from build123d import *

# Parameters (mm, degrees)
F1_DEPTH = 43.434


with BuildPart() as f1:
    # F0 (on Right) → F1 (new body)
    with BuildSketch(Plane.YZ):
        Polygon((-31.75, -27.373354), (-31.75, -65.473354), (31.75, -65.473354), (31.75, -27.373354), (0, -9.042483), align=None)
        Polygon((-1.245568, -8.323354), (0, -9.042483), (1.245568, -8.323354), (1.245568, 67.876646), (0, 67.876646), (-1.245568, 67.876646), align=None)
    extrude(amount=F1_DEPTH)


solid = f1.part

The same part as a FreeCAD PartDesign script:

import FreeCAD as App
import Part
import Sketcher

V = App.Vector
Q = App.Units.Quantity


def add_polygon(sketch, points):
    """Adds a closed chain of lines whose ends are joined by coincident constraints."""
    first, n = sketch.GeometryCount, len(points)
    for a, b in zip(points, points[1:] + points[:1]):
        sketch.addGeometry(Part.LineSegment(App.Vector(*a, 0), App.Vector(*b, 0)), False)
    for i in range(n):
        sketch.addConstraint(Sketcher.Constraint("Coincident", first + i, 2, first + (i + 1) % n, 1))

doc = App.newDocument("Part")
params = doc.addObject("Spreadsheet::Sheet", "Params")
for row, (alias, value) in enumerate([
    ("sketch1_height", "3 in"),
    ("sketch1_width", "2.5 in"),
    ("sketch1_height2", "1.5 in"),
    ("pad1_length", "1.71 in"),
], start=1):
    params.set(f"A{row}", alias)
    params.set(f"B{row}", "=" + value)
    params.setAlias(f"B{row}", alias)

body = doc.addObject("PartDesign::Body", "Body")
body.AllowCompound = True

# Sketch on YZ plane
sketch1 = doc.addObject("Sketcher::SketchObject", "Sketch")
body.addObject(sketch1)
sketch1.AttachmentSupport = (doc.YZ_Plane, [""])
sketch1.MapMode = "FlatFace"
add_polygon(sketch1, [(-31.75, -27.373354), (-31.75, -65.473354), (31.75, -65.473354), (31.75, -27.373354), (0, -9.042483)])  # lines 0-4
add_polygon(sketch1, [(-1.245568, -8.323354), (0, -9.042483), (1.245568, -8.323354), (1.245568, 67.876646), (-1.245568, 67.876646)])  # lines 5-9
sketch1.addConstraint([
    Sketcher.Constraint("Vertical", 0),
    Sketcher.Constraint("Horizontal", 1),
    Sketcher.Constraint("Vertical", 2),
    Sketcher.Constraint("Vertical", 7),
    Sketcher.Constraint("Horizontal", 8),
    Sketcher.Constraint("Vertical", 9),
    Sketcher.Constraint("Coincident", 5, 2, 3, 2),
    Sketcher.Constraint("Symmetric", 2, 2, 4, 2, -2),
    Sketcher.Constraint("Symmetric", 6, 2, 9, 2, -2),
    Sketcher.Constraint("PointOnObject", 3, 2, -2),
    Sketcher.Constraint("Parallel", 3, 5),
    Sketcher.Constraint("DistanceY", 7, 1, 7, 2, Q("3 in")),
    Sketcher.Constraint("DistanceX", 1, 1, 1, 2, Q("2.5 in")),
    Sketcher.Constraint("DistanceY", 0, 2, 0, 1, Q("1.5 in")),
    Sketcher.Constraint("Angle", 3, Q("150 deg")),
    Sketcher.Constraint("DistanceY", 2, 2, 6, 2, Q("0.75 in")),
    Sketcher.Constraint("DistanceY", 0, 2, -1, 1, 65.473354),
])
sketch1.setExpression("Constraints[21]", "Params.sketch1_height")
sketch1.setExpression("Constraints[22]", "Params.sketch1_width")
sketch1.setExpression("Constraints[23]", "Params.sketch1_height2")
pad1 = doc.addObject("PartDesign::Pad", "Pad")
body.addObject(pad1)
pad1.Profile = sketch1
pad1.setExpression("Length", "Params.pad1_length")

doc.recompute()
